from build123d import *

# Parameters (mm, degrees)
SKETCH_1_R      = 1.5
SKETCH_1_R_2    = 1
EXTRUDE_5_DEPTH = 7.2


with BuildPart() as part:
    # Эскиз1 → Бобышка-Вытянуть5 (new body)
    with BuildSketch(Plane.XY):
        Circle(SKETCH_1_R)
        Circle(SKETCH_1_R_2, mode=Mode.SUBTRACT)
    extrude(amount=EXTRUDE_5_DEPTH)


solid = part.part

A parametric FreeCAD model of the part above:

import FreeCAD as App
import Part
import Sketcher
from FreeCAD import Vector
Q = App.Units.Quantity

doc = App.newDocument("Part")
body = doc.addObject("PartDesign::Body", "Body")

# Sketch on XY plane
sketch1 = body.newObject("Sketcher::SketchObject", "Sketch")
sketch1.AttachmentSupport = (doc.getObject("XY_Plane"), [""])
sketch1.MapMode = "FlatFace"
sketch1.addGeometry([
    Part.Circle(Vector(0, 0, 0), Vector(0, 0, 1), 1.5),
    Part.Circle(Vector(0, 0, 0), Vector(0, 0, 1), 1),
], False)
sketch1.addConstraint([
    Sketcher.Constraint("Coincident", 0, 3, -1, 1),
    Sketcher.Constraint("Coincident", 1, 3, -1, 1),
    Sketcher.Constraint("Diameter", 0, Q("3 mm")),
    Sketcher.Constraint("Diameter", 1, Q("2 mm")),
])
pad1 = body.newObject("PartDesign::Pad", "Pad")
pad1.Profile = sketch1
pad1.Length = 7.2

doc.recompute()
